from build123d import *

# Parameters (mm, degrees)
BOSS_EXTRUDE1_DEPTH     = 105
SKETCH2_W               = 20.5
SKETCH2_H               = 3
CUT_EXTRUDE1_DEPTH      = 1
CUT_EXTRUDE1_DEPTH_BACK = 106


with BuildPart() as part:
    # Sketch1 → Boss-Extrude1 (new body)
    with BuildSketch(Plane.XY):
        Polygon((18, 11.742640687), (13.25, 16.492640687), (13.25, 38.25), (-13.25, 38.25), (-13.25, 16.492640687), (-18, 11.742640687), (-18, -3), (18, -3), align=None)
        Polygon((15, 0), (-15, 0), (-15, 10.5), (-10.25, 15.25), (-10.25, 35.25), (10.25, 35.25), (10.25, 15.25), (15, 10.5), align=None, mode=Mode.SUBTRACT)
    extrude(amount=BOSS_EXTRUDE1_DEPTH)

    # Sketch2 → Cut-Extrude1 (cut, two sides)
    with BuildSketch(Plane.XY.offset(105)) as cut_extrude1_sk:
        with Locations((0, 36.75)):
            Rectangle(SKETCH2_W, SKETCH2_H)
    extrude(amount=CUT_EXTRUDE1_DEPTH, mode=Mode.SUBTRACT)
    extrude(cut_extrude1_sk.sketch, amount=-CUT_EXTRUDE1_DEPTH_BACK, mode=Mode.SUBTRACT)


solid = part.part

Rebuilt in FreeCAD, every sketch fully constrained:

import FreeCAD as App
import Part
import Sketcher
Q = App.Units.Quantity


def add_polygon(sketch, points):
    """Adds a closed chain of lines whose ends are joined by coincident constraints."""
    first, n = sketch.GeometryCount, len(points)
    for a, b in zip(points, points[1:] + points[:1]):
        sketch.addGeometry(Part.LineSegment(App.Vector(*a, 0), App.Vector(*b, 0)), False)
    for i in range(n):
        sketch.addConstraint(Sketcher.Constraint("Coincident", first + i, 2, first + (i + 1) % n, 1))

doc = App.newDocument("Part")
body = doc.addObject("PartDesign::Body", "Body")

sketch1 = body.newObject("Sketcher::SketchObject", "Sketch")
sketch1.AttachmentSupport = (doc.getObject("XY_Plane"), [""])
sketch1.MapMode = "FlatFace"
add_polygon(sketch1, [(18, 12), (13, 16), (13, 38), (-13, 38), (-13, 16), (-18, 12), (-18, -3), (18, -3)])
add_polygon(sketch1, [(15, 10), (15, 0), (-15, 0), (-15, 10), (-10, 15), (-10, 35), (10, 35), (10, 15)])
sketch1.addConstraint(Sketcher.Constraint("Vertical", 1))
sketch1.addConstraint(Sketcher.Constraint("Horizontal", 2))
sketch1.addConstraint(Sketcher.Constraint("Vertical", 3))
sketch1.addConstraint(Sketcher.Constraint("Vertical", 5))
sketch1.addConstraint(Sketcher.Constraint("Horizontal", 6))
sketch1.addConstraint(Sketcher.Constraint("Vertical", 7))
sketch1.addConstraint(Sketcher.Constraint("Vertical", 8))
sketch1.addConstraint(Sketcher.Constraint("Horizontal", 9))
sketch1.addConstraint(Sketcher.Constraint("Vertical", 10))
sketch1.addConstraint(Sketcher.Constraint("Vertical", 12))
sketch1.addConstraint(Sketcher.Constraint("Horizontal", 13))
sketch1.addConstraint(Sketcher.Constraint("Vertical", 14))
sketch1.addConstraint(Sketcher.Constraint("Symmetric", 8, 2, 9, 2, -1, 1))
sketch1.addConstraint(Sketcher.Constraint("Symmetric", 0, 2, 3, 2, -2))
sketch1.addConstraint(Sketcher.Constraint("Symmetric", 4, 2, 7, 2, -2))
sketch1.addConstraint(Sketcher.Constraint("Symmetric", 11, 2, 14, 2, -2))
sketch1.addConstraint(Sketcher.Constraint("Perpendicular", 0, 4))
sketch1.addConstraint(Sketcher.Constraint("Parallel", 4, 11))
sketch1.addConstraint(Sketcher.Constraint("Perpendicular", 11, 15))
sketch1.addConstraint(Sketcher.Constraint("Equal", 4, 11))
sketch1.addConstraint(Sketcher.Constraint("DistanceX", 6, 1, 6, 2, Q("36 mm")))
sketch1.addConstraint(Sketcher.Constraint("DistanceX", 9, 2, 9, 1, Q("30 mm")))
sketch1.addConstraint(Sketcher.Constraint("DistanceY", 12, 1, 12, 2, Q("20 mm")))
sketch1.addConstraint(Sketcher.Constraint("DistanceX", 2, 2, 2, 1, Q("26.5 mm")))
sketch1.addConstraint(Sketcher.Constraint("DistanceY", 8, 2, 8, 1, Q("10.5 mm")))
sketch1.addConstraint(Sketcher.Constraint("DistanceY", 5, 2, -1, 1, Q("3 mm")))
sketch1.addConstraint(Sketcher.Constraint("DistanceY", 12, 2, 2, 2, Q("3 mm")))
sketch1.addConstraint(Sketcher.Constraint("DistanceY", 1, 1, 1, 2, Q("21.757359 mm")))
pad1 = body.newObject("PartDesign::Pad", "Pad")
pad1.Profile = sketch1
pad1.Length = 105

sketch2 = body.newObject("Sketcher::SketchObject", "Sketch001")
sketch2.AttachmentSupport = (doc.getObject("XY_Plane"), [""])
sketch2.MapMode = "FlatFace"
sketch2.AttachmentOffset = App.Placement(App.Vector(0, 0, 105), App.Rotation())
add_polygon(sketch2, [(-10.2, 38.2), (-10.2, 35.2), (10.2, 35.2), (10.2, 38.2)])
sketch2.addConstraint(Sketcher.Constraint("Vertical", 0))
sketch2.addConstraint(Sketcher.Constraint("Horizontal", 1))
sketch2.addConstraint(Sketcher.Constraint("Vertical", 2))
sketch2.addConstraint(Sketcher.Constraint("Horizontal", 3))
sketch2.addConstraint(Sketcher.Constraint("DistanceY", 0, 2, 0, 1, Q("3 mm")))
sketch2.addConstraint(Sketcher.Constraint("DistanceX", 1, 1, 1, 2, Q("20.5 mm")))
sketch2.addConstraint(Sketcher.Constraint("DistanceX", 0, 2, -1, 1, Q("10.25 mm")))
sketch2.addConstraint(Sketcher.Constraint("DistanceY", -1, 1, 0, 2, Q("35.25 mm")))
pocket1 = body.newObject("PartDesign::Pocket", "Pocket")
pocket1.Profile = sketch2
pocket1.Type = "ThroughAll"
pocket1.Midplane = True

doc.recompute()
